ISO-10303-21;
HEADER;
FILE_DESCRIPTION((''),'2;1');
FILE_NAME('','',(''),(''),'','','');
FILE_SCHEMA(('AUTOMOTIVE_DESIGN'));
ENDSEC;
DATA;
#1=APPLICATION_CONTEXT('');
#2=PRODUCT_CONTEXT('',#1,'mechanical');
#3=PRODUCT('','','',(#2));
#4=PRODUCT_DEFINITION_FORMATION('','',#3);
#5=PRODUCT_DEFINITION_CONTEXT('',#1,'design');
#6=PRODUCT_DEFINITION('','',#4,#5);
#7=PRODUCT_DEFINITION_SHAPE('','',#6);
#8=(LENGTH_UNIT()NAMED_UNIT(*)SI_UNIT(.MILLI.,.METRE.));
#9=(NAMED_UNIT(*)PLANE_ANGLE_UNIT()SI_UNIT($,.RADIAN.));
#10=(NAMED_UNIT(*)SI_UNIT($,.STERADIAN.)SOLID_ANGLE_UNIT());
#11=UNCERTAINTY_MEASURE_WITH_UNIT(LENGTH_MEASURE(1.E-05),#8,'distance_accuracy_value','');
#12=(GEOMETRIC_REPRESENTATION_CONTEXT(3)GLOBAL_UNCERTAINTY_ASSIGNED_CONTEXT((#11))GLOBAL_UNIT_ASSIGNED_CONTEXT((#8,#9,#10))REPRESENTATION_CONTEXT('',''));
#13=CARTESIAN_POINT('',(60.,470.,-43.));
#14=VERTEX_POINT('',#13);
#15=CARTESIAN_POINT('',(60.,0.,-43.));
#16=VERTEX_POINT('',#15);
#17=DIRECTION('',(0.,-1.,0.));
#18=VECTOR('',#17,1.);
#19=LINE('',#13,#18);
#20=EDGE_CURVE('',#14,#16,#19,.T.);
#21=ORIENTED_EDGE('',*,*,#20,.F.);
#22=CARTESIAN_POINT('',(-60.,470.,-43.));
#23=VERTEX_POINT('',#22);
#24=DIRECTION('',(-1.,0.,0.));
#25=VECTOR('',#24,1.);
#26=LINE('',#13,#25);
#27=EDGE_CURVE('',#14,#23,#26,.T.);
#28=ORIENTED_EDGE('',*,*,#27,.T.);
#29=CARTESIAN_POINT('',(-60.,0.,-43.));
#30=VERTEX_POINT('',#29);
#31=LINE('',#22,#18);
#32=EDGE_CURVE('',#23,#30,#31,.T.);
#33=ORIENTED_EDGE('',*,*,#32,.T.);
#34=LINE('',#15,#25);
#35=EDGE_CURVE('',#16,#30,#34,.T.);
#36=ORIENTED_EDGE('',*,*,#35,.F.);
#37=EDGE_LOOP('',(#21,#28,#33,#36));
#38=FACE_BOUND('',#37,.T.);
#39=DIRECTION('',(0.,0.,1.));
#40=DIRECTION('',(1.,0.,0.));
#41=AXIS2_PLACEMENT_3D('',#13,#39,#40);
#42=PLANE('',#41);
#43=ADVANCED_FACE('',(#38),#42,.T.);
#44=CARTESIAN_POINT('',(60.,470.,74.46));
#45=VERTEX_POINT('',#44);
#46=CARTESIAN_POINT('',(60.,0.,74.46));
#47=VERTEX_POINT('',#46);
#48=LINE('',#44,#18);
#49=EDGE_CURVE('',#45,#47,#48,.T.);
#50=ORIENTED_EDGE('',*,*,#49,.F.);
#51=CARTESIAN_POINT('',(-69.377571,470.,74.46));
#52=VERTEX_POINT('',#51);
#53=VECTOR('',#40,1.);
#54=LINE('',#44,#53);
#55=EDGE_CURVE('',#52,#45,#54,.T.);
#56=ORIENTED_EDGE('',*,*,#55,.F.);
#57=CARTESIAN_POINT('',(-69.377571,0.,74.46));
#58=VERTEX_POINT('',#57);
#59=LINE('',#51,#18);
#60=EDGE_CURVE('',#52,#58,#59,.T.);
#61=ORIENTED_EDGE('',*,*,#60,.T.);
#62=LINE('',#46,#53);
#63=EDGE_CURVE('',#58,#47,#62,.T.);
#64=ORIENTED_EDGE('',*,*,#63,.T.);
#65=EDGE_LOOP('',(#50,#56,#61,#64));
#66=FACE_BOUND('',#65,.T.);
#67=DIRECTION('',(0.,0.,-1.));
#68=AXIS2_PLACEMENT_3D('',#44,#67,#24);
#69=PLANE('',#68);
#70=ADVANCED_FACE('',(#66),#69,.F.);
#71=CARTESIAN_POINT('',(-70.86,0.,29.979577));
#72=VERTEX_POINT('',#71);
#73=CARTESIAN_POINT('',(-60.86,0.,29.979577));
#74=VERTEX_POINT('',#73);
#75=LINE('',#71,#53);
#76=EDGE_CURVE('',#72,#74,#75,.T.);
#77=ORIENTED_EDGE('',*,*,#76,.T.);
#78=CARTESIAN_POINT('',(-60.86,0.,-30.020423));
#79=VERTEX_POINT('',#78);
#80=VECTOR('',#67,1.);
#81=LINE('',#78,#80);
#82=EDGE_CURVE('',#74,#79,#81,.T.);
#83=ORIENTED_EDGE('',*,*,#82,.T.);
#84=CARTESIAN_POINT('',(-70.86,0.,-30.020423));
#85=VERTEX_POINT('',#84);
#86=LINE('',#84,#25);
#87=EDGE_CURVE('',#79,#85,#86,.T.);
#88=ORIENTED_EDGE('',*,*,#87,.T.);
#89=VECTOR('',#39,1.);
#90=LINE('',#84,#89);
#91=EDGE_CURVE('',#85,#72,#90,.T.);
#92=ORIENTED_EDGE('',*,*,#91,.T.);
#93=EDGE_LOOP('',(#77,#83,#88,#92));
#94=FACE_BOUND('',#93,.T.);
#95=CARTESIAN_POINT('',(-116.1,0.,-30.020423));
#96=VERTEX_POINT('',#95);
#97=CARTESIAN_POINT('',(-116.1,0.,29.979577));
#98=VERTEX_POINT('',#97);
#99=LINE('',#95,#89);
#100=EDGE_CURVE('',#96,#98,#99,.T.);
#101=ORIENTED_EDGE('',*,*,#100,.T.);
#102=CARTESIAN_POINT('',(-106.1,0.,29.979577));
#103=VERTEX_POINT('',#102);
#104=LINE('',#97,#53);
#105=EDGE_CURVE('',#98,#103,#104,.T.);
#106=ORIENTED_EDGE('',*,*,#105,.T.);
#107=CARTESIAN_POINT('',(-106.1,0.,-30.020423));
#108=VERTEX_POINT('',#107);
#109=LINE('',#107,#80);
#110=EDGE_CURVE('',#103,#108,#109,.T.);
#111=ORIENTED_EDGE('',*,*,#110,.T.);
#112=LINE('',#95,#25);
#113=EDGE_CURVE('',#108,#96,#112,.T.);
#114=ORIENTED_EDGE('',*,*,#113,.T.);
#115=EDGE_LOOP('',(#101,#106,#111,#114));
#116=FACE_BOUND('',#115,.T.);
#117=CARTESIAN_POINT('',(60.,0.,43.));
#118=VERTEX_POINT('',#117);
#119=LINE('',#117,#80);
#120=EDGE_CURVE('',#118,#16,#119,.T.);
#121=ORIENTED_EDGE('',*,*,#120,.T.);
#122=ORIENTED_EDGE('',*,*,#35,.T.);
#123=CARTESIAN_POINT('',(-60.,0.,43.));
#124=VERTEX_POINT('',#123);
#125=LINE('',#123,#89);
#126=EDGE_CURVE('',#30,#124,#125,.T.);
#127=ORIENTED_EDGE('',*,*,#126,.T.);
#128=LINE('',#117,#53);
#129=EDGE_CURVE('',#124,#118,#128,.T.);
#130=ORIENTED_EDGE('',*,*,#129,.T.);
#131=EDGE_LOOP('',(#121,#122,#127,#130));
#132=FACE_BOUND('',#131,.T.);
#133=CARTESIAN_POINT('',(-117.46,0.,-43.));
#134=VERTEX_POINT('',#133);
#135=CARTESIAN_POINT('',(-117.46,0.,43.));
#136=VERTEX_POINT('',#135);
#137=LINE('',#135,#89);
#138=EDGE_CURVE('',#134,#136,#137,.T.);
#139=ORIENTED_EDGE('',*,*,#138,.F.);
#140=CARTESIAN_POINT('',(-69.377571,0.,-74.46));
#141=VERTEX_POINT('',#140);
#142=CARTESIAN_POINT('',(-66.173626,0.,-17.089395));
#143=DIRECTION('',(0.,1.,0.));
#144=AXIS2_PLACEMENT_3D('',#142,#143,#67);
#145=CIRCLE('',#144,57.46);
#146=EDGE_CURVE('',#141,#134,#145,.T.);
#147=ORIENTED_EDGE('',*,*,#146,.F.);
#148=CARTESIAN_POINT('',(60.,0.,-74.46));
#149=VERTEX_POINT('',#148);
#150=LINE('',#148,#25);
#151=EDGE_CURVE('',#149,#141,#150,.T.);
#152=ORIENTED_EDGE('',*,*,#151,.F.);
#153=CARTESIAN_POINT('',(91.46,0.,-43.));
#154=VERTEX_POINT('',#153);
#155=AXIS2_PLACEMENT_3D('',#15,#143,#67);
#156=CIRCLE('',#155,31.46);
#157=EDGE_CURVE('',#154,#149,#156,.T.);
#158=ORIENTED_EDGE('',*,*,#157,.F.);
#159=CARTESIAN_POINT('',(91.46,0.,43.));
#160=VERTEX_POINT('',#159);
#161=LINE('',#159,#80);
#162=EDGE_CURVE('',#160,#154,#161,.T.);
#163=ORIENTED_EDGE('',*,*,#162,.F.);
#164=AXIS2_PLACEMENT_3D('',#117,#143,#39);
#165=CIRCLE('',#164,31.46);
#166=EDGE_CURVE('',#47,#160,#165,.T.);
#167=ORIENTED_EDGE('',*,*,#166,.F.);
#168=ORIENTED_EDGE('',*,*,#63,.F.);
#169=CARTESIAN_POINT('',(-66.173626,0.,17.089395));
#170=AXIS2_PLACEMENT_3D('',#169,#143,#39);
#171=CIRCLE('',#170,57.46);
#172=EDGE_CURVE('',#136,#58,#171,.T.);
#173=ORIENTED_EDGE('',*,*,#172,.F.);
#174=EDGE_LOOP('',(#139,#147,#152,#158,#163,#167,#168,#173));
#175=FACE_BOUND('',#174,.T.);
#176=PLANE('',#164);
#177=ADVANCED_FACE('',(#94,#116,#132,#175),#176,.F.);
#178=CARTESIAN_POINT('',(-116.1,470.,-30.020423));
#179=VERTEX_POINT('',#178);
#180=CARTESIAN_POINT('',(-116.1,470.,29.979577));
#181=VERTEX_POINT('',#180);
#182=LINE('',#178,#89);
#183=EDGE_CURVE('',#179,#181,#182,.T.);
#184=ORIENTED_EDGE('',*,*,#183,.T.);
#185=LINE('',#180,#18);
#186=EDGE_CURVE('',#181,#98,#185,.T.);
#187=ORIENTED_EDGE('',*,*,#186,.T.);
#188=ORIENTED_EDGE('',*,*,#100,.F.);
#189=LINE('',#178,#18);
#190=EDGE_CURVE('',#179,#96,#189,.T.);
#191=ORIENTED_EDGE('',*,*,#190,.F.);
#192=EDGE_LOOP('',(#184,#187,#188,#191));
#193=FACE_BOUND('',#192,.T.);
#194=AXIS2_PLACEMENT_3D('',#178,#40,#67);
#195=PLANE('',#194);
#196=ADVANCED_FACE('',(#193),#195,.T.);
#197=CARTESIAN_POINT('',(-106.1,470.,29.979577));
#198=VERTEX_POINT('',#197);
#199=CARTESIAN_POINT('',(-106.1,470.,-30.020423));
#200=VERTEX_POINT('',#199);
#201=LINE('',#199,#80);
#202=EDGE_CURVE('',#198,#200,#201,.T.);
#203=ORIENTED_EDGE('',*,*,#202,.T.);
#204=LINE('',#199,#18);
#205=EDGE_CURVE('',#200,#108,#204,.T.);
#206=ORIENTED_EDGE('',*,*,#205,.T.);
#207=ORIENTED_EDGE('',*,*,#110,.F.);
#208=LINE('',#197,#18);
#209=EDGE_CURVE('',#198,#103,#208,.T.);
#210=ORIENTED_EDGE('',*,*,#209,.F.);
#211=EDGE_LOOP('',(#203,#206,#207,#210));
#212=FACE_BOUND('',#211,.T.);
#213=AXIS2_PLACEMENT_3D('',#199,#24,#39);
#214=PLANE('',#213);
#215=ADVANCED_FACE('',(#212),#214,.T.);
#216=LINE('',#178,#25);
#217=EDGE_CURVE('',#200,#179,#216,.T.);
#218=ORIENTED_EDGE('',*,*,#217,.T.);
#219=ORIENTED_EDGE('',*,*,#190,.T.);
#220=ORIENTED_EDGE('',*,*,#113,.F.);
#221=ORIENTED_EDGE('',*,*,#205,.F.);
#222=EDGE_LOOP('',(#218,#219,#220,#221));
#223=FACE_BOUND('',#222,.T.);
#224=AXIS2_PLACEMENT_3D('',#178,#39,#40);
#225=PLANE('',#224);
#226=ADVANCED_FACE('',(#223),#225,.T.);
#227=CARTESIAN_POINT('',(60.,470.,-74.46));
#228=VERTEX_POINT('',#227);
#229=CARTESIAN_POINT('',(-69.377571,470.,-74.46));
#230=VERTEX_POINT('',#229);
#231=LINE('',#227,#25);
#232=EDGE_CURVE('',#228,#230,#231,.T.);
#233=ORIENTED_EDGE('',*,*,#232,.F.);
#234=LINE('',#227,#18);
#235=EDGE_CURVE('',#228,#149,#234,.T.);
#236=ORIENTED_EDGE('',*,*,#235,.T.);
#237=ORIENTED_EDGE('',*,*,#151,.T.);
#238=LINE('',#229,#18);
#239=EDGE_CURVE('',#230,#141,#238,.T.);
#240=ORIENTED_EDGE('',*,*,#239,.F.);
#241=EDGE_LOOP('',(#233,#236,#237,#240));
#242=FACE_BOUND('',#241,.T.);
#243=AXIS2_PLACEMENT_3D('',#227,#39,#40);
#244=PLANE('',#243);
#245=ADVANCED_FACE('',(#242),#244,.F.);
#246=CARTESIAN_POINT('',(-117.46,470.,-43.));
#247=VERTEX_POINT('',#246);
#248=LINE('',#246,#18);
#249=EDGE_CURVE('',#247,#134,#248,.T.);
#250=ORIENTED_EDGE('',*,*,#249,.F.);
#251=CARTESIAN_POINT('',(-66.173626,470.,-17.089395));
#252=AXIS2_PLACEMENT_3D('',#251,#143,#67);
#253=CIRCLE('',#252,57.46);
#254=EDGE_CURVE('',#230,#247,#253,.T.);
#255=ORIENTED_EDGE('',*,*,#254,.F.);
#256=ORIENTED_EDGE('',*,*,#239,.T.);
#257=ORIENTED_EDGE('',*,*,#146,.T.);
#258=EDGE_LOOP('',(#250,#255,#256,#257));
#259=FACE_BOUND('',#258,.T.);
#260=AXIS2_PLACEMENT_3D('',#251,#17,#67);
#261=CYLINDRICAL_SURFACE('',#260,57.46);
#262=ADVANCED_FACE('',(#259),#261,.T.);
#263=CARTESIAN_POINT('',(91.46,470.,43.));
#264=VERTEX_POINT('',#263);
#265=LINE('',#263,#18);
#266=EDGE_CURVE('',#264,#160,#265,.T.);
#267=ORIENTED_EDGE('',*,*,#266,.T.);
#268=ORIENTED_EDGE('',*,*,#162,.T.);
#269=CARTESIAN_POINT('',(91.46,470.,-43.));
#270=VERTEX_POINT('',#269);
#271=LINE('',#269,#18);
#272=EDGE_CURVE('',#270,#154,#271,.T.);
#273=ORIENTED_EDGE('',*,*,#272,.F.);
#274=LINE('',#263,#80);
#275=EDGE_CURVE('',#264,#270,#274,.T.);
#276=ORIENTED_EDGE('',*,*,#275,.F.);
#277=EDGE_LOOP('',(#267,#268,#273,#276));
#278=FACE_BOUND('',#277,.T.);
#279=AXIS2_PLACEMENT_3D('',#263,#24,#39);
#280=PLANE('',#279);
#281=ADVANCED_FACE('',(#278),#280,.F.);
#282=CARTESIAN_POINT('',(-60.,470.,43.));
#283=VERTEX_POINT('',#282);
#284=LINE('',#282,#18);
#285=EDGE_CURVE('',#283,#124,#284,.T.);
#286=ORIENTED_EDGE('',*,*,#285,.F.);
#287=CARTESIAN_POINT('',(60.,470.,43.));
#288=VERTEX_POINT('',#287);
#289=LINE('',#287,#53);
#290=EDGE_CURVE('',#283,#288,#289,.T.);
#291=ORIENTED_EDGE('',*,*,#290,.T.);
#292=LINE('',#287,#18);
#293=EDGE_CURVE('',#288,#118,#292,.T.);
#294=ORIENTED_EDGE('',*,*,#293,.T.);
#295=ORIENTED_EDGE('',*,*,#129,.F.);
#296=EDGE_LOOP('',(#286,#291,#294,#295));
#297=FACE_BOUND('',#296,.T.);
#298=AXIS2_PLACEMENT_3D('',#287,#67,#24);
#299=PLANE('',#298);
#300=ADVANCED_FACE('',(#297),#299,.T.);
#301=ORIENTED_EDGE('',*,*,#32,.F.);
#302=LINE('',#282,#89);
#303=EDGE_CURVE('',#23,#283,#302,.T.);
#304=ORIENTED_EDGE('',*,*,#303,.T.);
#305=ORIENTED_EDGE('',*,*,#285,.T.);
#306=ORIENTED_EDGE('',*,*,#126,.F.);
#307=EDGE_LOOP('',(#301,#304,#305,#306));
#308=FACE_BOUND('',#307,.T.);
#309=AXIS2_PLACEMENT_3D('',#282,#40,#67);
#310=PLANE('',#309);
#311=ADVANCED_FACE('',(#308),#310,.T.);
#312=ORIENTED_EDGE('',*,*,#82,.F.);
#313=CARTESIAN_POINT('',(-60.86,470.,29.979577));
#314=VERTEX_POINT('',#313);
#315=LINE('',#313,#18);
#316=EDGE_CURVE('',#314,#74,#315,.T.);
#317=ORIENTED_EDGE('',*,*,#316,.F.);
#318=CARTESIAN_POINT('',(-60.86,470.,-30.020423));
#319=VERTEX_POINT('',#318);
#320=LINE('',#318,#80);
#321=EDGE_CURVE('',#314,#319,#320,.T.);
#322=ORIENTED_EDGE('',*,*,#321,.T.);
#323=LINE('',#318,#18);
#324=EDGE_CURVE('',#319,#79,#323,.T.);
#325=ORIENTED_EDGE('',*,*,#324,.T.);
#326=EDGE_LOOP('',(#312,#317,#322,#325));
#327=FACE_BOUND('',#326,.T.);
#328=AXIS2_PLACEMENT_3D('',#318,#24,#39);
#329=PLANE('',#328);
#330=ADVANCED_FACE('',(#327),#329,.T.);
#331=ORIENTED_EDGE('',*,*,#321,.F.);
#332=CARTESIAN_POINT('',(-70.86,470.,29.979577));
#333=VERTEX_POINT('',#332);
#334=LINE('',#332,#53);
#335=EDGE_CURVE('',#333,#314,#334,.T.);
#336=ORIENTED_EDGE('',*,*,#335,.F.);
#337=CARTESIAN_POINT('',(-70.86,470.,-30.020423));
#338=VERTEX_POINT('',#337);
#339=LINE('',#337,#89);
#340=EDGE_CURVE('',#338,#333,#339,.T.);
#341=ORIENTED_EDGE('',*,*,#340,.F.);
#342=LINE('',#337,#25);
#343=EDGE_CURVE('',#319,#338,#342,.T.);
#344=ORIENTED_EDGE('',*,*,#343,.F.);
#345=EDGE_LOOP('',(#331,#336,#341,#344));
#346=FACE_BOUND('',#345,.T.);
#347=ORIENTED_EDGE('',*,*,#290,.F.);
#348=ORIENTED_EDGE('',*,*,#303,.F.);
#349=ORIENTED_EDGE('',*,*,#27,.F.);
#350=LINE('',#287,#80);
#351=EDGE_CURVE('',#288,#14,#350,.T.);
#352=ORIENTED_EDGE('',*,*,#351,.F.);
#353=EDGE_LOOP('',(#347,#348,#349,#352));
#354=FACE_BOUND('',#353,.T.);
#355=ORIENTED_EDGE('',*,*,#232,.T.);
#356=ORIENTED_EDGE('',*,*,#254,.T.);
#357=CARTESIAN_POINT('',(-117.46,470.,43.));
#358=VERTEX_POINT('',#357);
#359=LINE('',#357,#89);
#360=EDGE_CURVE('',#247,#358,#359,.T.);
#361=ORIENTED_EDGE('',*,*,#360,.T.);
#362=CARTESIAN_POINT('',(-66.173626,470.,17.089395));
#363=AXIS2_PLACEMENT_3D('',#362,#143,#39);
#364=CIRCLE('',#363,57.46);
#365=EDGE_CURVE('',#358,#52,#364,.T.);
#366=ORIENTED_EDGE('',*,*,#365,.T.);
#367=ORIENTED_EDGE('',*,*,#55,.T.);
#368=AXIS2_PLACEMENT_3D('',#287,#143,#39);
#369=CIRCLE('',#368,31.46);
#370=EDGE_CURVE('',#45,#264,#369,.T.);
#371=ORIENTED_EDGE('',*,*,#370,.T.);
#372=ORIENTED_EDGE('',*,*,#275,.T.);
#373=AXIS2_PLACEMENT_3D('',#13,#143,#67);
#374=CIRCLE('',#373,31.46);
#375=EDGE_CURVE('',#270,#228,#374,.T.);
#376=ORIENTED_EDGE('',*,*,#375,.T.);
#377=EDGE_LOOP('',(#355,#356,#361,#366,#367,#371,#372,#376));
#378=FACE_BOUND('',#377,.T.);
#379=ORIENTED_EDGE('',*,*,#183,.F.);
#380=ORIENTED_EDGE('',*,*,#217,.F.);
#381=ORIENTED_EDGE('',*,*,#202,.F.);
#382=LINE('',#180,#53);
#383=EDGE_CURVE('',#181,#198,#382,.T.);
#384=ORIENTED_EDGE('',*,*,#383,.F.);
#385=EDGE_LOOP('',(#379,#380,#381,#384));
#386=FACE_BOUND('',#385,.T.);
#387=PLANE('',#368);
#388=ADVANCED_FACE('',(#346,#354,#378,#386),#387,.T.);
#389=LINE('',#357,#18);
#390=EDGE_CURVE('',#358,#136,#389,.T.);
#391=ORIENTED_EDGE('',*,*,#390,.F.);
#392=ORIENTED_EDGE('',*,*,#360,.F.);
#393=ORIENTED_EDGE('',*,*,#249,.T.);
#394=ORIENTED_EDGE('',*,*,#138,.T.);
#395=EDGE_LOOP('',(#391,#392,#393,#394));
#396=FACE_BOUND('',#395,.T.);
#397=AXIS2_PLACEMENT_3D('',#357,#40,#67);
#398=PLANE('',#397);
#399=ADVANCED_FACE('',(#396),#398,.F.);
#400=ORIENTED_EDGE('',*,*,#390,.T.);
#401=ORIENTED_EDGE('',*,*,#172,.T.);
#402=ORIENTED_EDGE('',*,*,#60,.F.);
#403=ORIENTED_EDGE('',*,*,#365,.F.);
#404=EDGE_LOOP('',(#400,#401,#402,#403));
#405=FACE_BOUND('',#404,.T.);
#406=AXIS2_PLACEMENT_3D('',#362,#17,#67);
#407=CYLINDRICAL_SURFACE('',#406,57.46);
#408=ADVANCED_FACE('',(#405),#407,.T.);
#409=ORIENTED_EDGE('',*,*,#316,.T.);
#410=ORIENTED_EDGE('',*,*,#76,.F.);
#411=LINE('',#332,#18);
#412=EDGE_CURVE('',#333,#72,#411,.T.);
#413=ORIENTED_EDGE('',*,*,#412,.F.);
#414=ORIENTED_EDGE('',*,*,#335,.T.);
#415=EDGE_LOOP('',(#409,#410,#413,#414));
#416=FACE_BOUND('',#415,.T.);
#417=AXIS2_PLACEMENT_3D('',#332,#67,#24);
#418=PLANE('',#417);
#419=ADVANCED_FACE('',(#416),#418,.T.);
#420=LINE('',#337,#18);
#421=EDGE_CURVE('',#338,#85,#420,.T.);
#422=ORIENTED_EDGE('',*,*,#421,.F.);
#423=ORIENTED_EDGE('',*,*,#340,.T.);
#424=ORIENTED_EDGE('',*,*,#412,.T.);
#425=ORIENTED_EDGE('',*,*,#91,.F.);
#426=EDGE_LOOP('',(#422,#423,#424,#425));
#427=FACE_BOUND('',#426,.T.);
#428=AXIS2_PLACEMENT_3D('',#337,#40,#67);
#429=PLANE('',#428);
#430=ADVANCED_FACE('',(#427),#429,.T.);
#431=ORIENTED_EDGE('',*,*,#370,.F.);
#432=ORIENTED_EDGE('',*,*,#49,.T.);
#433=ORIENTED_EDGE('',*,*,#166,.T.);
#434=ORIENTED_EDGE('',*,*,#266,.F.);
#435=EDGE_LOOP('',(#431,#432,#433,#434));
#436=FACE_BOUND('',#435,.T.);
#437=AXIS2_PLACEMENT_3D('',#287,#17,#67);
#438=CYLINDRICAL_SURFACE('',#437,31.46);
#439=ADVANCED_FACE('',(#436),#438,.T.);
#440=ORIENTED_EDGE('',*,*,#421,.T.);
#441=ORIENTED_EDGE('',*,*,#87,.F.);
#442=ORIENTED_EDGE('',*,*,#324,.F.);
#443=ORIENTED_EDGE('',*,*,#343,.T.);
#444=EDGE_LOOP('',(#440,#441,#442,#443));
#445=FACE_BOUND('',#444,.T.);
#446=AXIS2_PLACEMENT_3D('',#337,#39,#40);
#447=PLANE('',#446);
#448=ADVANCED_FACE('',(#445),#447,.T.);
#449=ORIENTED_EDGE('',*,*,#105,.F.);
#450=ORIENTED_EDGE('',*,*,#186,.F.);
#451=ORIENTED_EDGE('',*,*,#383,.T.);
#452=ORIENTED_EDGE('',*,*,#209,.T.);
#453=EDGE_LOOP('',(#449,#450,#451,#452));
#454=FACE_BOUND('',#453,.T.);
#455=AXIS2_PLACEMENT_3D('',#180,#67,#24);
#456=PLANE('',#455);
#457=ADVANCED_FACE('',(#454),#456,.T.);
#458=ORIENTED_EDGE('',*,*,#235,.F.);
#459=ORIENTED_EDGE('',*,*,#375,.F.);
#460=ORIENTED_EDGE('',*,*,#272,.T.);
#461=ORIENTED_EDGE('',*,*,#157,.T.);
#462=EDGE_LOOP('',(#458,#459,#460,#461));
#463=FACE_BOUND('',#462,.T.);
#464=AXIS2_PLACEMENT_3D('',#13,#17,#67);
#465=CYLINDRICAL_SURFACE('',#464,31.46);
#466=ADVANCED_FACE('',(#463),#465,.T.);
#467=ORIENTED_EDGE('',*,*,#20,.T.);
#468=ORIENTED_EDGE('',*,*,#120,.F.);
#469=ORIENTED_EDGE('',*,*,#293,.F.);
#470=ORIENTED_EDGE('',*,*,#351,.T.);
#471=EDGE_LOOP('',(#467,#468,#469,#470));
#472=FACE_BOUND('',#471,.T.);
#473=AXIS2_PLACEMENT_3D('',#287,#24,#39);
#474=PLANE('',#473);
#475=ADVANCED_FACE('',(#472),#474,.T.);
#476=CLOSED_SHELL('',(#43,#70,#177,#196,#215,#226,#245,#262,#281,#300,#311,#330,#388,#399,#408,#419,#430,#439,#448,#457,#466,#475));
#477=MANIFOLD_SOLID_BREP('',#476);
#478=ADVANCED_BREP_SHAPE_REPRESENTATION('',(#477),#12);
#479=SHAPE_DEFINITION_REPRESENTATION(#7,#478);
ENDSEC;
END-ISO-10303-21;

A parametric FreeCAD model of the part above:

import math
import FreeCAD as App
import Part
import Sketcher

V = App.Vector
Q = App.Units.Quantity


def add_polygon(sketch, points):
    """Adds a closed chain of lines whose ends are joined by coincident constraints."""
    first, n = sketch.GeometryCount, len(points)
    for a, b in zip(points, points[1:] + points[:1]):
        sketch.addGeometry(Part.LineSegment(App.Vector(*a, 0), App.Vector(*b, 0)), False)
    for i in range(n):
        sketch.addConstraint(Sketcher.Constraint("Coincident", first + i, 2, first + (i + 1) % n, 1))

doc = App.newDocument("Part")
body = doc.addObject("PartDesign::Body", "Body")

# Sketch on XZ plane
sketch1 = doc.addObject("Sketcher::SketchObject", "Sketch")
body.addObject(sketch1)
sketch1.AttachmentSupport = (doc.XZ_Plane, [""])
sketch1.MapMode = "FlatFace"
sketch1.addGeometry(Part.LineSegment(V(60, -74, 0), V(-69, -74, 0)), False)  # 0
sketch1.addGeometry(Part.ArcOfCircle(Part.Circle(V(-66, -17, 0), V(0, 0, 1), 57), math.radians(-153), math.radians(-93)), False)  # 1
sketch1.addGeometry(Part.LineSegment(V(-117, -43, 0), V(-117, 43, 0)), False)  # 2
sketch1.addGeometry(Part.ArcOfCircle(Part.Circle(V(-66, 17, 0), V(0, 0, 1), 57), math.radians(93), math.radians(153)), False)  # 3
sketch1.addGeometry(Part.LineSegment(V(-69, 74, 0), V(60, 74, 0)), False)  # 4
sketch1.addGeometry(Part.ArcOfCircle(Part.Circle(V(60, 43, 0), V(0, 0, 1), 31), math.radians(0), math.radians(90)), False)  # 5
sketch1.addGeometry(Part.LineSegment(V(91, 43, 0), V(91, -43, 0)), False)  # 6
sketch1.addGeometry(Part.ArcOfCircle(Part.Circle(V(60, -43, 0), V(0, 0, 1), 31), math.radians(-90), math.radians(0)), False)  # 7
add_polygon(sketch1, [(-106, 30), (-116, 30), (-116, -30), (-106, -30)])  # lines 8-11
add_polygon(sketch1, [(-61, 30), (-71, 30), (-71, -30), (-61, -30)])  # lines 12-15
add_polygon(sketch1, [(60, 43), (-60, 43), (-60, -43), (60, -43)])  # lines 16-19
sketch1.addConstraint([
    Sketcher.Constraint("Coincident", 0, 2, 1, 2),
    Sketcher.Constraint("Coincident", 1, 1, 2, 1),
    Sketcher.Constraint("Coincident", 2, 2, 3, 2),
    Sketcher.Constraint("Coincident", 3, 1, 4, 1),
    Sketcher.Constraint("Tangent", 4, 2, 5, 2),
    Sketcher.Constraint("Tangent", 5, 1, 6, 1),
    Sketcher.Constraint("Tangent", 6, 2, 7, 2),
    Sketcher.Constraint("Tangent", 7, 1, 0, 1),
    Sketcher.Constraint("Horizontal", 0),
    Sketcher.Constraint("Vertical", 2),
    Sketcher.Constraint("Horizontal", 4),
    Sketcher.Constraint("Vertical", 6),
    Sketcher.Constraint("Horizontal", 8),
    Sketcher.Constraint("Vertical", 9),
    Sketcher.Constraint("Horizontal", 10),
    Sketcher.Constraint("Vertical", 11),
    Sketcher.Constraint("Horizontal", 12),
    Sketcher.Constraint("Vertical", 13),
    Sketcher.Constraint("Horizontal", 14),
    Sketcher.Constraint("Vertical", 15),
    Sketcher.Constraint("Horizontal", 16),
    Sketcher.Constraint("Vertical", 17),
    Sketcher.Constraint("Horizontal", 18),
    Sketcher.Constraint("Vertical", 19),
    Sketcher.Constraint("Coincident", 18, 2, 7, 3),
    Sketcher.Constraint("Coincident", 19, 2, 5, 3),
    Sketcher.Constraint("Equal", 1, 3),
    Sketcher.Constraint("Symmetric", 16, 2, 18, 2, -1, 1),
    Sketcher.Constraint("Symmetric", 1, 3, 3, 3, -1),
    Sketcher.Constraint("Horizontal", 7, 3, 1, 1),
    Sketcher.Constraint("Horizontal", 11, 2, 12, 2),
    Sketcher.Constraint("Horizontal", 10, 2, 13, 2),
    Sketcher.Constraint("Equal", 10, 12),
    Sketcher.Constraint("DistanceX", 8, 2, 8, 1, Q("10 mm")),
    Sketcher.Constraint("DistanceX", 16, 2, 16, 1, Q("120 mm")),
    Sketcher.Constraint("DistanceY", 2, 1, 2, 2, Q("86 mm")),
    Sketcher.Constraint("DistanceY", 9, 2, 9, 1, Q("60 mm")),
    Sketcher.Constraint("Radius", 1, Q("57.46 mm")),
    Sketcher.Constraint("Radius", 5, Q("31.46 mm")),
    Sketcher.Constraint("DistanceX", 8, 2, -1, 1, Q("116.1 mm")),
    Sketcher.Constraint("DistanceX", 1, 1, -1, 1, Q("117.46 mm")),
    Sketcher.Constraint("DistanceX", 12, 2, -1, 1, Q("70.86 mm")),
    Sketcher.Constraint("DistanceX", 0, 2, 0, 1, Q("129.377571 mm")),
    Sketcher.Constraint("DistanceY", 3, 3, 8, 2, Q("12.890182 mm")),
])
pad1 = doc.addObject("PartDesign::Pad", "Pad")
body.addObject(pad1)
pad1.Profile = sketch1
pad1.Length = 470
pad1.Reversed = True

doc.recompute()
